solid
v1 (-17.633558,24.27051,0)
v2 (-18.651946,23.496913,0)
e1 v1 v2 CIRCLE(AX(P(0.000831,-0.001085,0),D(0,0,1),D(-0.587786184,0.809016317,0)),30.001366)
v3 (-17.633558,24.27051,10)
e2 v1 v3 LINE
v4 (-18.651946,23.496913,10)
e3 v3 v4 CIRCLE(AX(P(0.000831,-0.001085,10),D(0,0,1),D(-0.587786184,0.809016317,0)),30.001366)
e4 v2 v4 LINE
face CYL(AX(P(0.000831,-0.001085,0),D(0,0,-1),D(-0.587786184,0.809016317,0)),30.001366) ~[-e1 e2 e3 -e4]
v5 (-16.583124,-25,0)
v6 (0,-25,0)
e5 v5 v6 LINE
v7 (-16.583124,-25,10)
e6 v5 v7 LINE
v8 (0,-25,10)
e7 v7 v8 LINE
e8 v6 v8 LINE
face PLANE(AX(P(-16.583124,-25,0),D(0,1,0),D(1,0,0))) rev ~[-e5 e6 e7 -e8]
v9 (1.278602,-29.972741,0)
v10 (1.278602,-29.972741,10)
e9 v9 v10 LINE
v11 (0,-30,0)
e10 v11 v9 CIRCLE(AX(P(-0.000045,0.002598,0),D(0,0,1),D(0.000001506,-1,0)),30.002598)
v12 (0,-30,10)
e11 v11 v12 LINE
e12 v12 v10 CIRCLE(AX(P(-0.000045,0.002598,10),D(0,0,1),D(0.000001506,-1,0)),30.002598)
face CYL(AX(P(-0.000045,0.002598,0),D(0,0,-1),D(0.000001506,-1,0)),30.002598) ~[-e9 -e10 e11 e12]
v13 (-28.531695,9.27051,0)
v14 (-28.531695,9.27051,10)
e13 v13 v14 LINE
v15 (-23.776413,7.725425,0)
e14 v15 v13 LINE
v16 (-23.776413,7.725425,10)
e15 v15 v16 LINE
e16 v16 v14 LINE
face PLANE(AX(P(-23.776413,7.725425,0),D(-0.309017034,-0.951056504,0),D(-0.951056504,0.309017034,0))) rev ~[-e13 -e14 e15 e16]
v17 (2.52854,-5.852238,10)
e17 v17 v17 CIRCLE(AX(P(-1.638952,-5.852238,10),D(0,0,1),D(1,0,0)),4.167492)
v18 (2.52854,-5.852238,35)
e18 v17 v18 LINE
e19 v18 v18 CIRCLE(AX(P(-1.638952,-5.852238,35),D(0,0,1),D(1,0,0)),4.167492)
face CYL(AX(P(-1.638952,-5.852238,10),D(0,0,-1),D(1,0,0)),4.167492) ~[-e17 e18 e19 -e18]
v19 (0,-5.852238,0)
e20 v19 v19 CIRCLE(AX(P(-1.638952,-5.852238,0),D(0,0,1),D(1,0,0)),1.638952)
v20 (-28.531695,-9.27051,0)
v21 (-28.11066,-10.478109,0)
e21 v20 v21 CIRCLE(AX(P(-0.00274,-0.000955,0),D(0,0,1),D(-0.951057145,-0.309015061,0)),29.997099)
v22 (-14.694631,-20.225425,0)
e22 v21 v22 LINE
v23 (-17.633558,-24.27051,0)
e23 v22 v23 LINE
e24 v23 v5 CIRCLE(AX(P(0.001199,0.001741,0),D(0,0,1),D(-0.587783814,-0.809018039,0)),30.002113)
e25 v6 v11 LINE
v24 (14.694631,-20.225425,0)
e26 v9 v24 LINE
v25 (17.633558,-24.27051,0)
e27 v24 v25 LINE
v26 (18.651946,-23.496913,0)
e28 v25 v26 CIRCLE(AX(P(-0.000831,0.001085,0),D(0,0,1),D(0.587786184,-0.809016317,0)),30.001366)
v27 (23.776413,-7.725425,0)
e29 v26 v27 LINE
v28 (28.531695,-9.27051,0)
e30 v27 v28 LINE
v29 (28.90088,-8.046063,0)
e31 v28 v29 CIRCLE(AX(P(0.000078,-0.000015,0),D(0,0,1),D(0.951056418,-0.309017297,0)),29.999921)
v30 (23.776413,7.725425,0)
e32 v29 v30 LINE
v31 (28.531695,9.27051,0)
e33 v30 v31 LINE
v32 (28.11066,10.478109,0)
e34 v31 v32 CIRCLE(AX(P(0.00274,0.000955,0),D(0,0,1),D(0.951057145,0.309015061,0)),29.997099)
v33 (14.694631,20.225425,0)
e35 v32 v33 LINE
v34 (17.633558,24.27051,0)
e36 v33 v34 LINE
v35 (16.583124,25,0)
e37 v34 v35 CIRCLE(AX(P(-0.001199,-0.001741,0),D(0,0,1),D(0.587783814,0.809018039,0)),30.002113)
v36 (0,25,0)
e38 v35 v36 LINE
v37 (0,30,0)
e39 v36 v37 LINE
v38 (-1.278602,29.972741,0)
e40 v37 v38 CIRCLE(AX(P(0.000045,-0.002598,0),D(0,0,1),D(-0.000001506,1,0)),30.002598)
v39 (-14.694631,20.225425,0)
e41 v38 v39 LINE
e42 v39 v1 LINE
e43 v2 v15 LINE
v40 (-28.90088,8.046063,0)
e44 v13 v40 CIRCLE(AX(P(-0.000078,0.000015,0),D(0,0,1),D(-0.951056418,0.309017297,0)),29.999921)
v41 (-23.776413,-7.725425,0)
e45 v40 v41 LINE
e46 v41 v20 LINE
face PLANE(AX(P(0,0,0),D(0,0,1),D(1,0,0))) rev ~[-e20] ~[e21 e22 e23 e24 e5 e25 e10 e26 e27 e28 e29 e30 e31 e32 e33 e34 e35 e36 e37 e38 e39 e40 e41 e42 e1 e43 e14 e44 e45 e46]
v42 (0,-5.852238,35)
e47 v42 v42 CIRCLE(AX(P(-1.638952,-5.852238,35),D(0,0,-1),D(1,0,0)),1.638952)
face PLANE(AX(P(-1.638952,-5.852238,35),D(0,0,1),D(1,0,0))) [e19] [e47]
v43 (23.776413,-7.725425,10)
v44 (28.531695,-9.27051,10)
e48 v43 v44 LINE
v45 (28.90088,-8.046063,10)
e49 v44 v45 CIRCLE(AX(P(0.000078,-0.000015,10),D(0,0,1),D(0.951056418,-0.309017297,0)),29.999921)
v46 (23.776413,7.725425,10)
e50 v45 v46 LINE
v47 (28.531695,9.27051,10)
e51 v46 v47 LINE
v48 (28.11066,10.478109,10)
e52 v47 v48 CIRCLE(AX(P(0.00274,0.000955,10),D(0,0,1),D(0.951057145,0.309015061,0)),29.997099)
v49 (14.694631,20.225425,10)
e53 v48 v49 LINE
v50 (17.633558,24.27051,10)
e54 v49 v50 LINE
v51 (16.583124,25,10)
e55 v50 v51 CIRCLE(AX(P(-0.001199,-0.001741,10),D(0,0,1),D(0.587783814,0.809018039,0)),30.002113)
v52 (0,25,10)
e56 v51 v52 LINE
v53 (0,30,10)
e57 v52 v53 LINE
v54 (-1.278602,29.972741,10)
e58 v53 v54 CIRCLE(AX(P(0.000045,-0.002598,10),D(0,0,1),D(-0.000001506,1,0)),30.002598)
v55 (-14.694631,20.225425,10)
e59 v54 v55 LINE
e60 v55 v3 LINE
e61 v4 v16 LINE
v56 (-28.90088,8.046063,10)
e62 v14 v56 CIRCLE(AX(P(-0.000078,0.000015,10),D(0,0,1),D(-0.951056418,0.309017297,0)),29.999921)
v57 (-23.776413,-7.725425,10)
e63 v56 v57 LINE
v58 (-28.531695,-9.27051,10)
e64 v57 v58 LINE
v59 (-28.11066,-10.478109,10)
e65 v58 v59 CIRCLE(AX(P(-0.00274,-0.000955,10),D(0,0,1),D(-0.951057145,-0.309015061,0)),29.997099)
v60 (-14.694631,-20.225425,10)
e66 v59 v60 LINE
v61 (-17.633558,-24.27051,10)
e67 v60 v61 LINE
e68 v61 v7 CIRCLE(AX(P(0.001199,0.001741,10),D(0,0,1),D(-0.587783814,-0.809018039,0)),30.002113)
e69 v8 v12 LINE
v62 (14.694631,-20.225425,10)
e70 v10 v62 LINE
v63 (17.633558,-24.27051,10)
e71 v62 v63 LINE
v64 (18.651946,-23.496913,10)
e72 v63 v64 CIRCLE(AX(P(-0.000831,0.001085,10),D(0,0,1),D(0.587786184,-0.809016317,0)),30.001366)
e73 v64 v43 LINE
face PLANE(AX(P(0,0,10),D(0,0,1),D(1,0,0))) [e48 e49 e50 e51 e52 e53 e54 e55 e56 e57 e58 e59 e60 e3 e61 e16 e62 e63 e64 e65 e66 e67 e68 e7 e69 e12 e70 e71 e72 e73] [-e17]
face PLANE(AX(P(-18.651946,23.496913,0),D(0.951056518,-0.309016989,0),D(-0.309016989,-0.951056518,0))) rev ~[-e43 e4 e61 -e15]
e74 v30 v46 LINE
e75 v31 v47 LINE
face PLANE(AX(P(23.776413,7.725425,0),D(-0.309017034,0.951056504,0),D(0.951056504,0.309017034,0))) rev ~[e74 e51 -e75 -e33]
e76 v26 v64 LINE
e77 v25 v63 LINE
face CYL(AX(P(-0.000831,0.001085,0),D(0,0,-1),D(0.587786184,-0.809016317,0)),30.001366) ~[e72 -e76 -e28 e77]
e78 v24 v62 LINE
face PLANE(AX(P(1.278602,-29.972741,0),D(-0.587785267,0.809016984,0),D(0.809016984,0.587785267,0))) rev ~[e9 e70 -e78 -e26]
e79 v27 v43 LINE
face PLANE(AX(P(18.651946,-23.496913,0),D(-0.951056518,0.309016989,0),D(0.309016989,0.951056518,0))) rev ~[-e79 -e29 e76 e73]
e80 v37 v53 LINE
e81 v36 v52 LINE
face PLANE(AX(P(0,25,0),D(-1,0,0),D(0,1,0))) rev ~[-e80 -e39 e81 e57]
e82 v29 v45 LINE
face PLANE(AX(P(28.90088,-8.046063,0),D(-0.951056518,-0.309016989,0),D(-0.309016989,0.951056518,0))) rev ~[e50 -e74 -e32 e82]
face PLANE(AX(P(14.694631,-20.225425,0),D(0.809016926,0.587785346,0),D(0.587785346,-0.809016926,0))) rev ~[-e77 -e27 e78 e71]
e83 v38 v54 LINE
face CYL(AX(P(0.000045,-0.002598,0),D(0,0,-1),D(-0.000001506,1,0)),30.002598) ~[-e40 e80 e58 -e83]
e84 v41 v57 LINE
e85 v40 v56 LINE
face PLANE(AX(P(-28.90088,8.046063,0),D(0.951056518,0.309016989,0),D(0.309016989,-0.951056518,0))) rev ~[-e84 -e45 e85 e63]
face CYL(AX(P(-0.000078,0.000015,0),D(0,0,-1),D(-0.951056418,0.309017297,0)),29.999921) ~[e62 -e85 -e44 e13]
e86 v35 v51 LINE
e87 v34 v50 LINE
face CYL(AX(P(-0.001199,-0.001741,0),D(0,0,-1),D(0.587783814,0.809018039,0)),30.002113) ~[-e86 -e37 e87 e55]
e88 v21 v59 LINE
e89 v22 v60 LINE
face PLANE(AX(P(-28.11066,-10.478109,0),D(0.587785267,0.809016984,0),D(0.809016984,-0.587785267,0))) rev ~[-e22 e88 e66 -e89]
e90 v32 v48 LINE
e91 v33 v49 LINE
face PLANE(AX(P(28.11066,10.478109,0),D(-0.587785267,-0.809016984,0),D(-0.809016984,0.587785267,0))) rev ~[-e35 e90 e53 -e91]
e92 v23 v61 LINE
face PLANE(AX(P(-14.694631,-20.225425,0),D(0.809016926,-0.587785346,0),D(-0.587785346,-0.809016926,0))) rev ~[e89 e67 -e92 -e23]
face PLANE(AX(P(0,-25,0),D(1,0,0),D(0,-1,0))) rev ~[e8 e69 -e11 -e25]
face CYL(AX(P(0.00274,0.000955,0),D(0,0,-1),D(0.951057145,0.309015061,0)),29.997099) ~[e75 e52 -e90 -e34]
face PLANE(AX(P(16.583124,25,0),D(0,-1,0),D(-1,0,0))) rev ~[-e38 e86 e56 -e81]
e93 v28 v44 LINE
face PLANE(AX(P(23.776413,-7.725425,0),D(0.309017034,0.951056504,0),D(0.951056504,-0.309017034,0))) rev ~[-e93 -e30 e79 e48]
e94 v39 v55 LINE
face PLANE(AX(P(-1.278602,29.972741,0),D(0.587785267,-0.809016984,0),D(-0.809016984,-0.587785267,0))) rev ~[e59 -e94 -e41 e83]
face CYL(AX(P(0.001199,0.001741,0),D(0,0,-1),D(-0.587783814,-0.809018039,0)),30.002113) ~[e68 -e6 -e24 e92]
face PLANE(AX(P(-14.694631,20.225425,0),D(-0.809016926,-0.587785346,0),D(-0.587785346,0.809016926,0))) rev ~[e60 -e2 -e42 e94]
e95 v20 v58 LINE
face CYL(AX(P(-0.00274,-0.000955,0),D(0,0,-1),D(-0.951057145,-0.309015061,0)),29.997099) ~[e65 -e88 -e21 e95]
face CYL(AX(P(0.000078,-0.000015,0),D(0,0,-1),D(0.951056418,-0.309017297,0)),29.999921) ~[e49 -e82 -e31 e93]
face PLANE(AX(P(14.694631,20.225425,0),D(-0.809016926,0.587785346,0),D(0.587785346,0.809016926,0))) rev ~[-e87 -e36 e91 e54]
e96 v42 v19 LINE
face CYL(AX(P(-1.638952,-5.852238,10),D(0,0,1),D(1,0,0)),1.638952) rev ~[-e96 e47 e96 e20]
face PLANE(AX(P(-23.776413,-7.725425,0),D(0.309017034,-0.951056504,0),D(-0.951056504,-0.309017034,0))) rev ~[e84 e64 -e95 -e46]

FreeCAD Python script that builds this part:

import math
import FreeCAD as App
import Part
import Sketcher

V = App.Vector
Q = App.Units.Quantity

doc = App.newDocument("Part")
body = doc.addObject("PartDesign::Body", "Body")

# Sketch on XY plane
sketch1 = body.newObject("Sketcher::SketchObject", "Sketch")
sketch1.AttachmentSupport = (doc.getObject("XY_Plane"), [""])
sketch1.MapMode = "FlatFace"
sketch1.addGeometry([
    Part.LineSegment(V(0, 25, 0), V(0, 30, 0)),  # 0
    Part.ArcOfCircle(Part.Circle(V(0.000045, -0.002598, 0), V(0, 0, 1), 30.002598), math.radians(90.000086), math.radians(92.442565)),  # 1
    Part.LineSegment(V(-1.278602, 29.972741, 0), V(-14.694631, 20.225425, 0)),  # 2
    Part.LineSegment(V(-14.694631, 20.225425, 0), V(-17.633558, 24.27051, 0)),  # 3
    Part.ArcOfCircle(Part.Circle(V(0.000831, -0.001085, 0), V(0, 0, 1), 30.001366), math.radians(126.000066), math.radians(128.442645)),  # 4
    Part.LineSegment(V(-18.651946, 23.496913, 0), V(-23.776413, 7.725425, 0)),  # 5
    Part.LineSegment(V(-23.776413, 7.725425, 0), V(-28.531695, 9.27051, 0)),  # 6
    Part.ArcOfCircle(Part.Circle(V(-0.000078, 0.000015, 0), V(0, 0, 1), 29.999921), math.radians(161.999982), math.radians(164.442679)),  # 7
    Part.LineSegment(V(-28.90088, 8.046063, 0), V(-23.776413, -7.725425, 0)),  # 8
    Part.LineSegment(V(-23.776413, -7.725425, 0), V(-28.531695, -9.27051, 0)),  # 9
    Part.ArcOfCircle(Part.Circle(V(-0.00274, -0.000955, 0), V(0, 0, 1), 29.997099), math.radians(-162.000116), math.radians(-159.557191)),  # 10
    Part.LineSegment(V(-28.11066, -10.478109, 0), V(-14.694631, -20.225425, 0)),  # 11
    Part.LineSegment(V(-14.694631, -20.225425, 0), V(-17.633558, -24.27051, 0)),  # 12
    Part.ArcOfCircle(Part.Circle(V(0.001199, 0.001741, 0), V(0, 0, 1), 30.002113), math.radians(-125.999898), math.radians(-123.55738)),  # 13
    Part.LineSegment(V(-16.583124, -25, 0), V(0, -25, 0)),  # 14
    Part.LineSegment(V(0, -25, 0), V(0, -30, 0)),  # 15
    Part.ArcOfCircle(Part.Circle(V(-0.000045, 0.002598, 0), V(0, 0, 1), 30.002598), math.radians(-89.999914), math.radians(-87.557435)),  # 16
    Part.LineSegment(V(1.278602, -29.972741, 0), V(14.694631, -20.225425, 0)),  # 17
    Part.LineSegment(V(14.694631, -20.225425, 0), V(17.633558, -24.27051, 0)),  # 18
    Part.ArcOfCircle(Part.Circle(V(-0.000831, 0.001085, 0), V(0, 0, 1), 30.001366), math.radians(-53.999934), math.radians(-51.557355)),  # 19
    Part.LineSegment(V(18.651946, -23.496913, 0), V(23.776413, -7.725425, 0)),  # 20
    Part.LineSegment(V(23.776413, -7.725425, 0), V(28.531695, -9.27051, 0)),  # 21
    Part.ArcOfCircle(Part.Circle(V(0.000078, -0.000015, 0), V(0, 0, 1), 29.999921), math.radians(-18.000018), math.radians(-15.557321)),  # 22
    Part.LineSegment(V(28.90088, -8.046063, 0), V(23.776413, 7.725425, 0)),  # 23
    Part.LineSegment(V(23.776413, 7.725425, 0), V(28.531695, 9.27051, 0)),  # 24
    Part.ArcOfCircle(Part.Circle(V(0.00274, 0.000955, 0), V(0, 0, 1), 29.997099), math.radians(17.999884), math.radians(20.442809)),  # 25
    Part.LineSegment(V(28.11066, 10.478109, 0), V(14.694631, 20.225425, 0)),  # 26
    Part.LineSegment(V(14.694631, 20.225425, 0), V(17.633558, 24.27051, 0)),  # 27
    Part.ArcOfCircle(Part.Circle(V(-0.001199, -0.001741, 0), V(0, 0, 1), 30.002113), math.radians(54.000102), math.radians(56.44262)),  # 28
    Part.LineSegment(V(16.583124, 25, 0), V(0, 25, 0)),  # 29
], False)
sketch1.addConstraint([
    Sketcher.Constraint("Coincident", 0, 2, 1, 1),
    Sketcher.Constraint("Coincident", 1, 2, 2, 1),
    Sketcher.Constraint("Coincident", 2, 2, 3, 1),
    Sketcher.Constraint("Coincident", 3, 2, 4, 1),
    Sketcher.Constraint("Coincident", 4, 2, 5, 1),
    Sketcher.Constraint("Coincident", 5, 2, 6, 1),
    Sketcher.Constraint("Coincident", 6, 2, 7, 1),
    Sketcher.Constraint("Coincident", 7, 2, 8, 1),
    Sketcher.Constraint("Coincident", 8, 2, 9, 1),
    Sketcher.Constraint("Coincident", 9, 2, 10, 1),
    Sketcher.Constraint("Coincident", 10, 2, 11, 1),
    Sketcher.Constraint("Coincident", 11, 2, 12, 1),
    Sketcher.Constraint("Coincident", 12, 2, 13, 1),
    Sketcher.Constraint("Coincident", 13, 2, 14, 1),
    Sketcher.Constraint("Coincident", 14, 2, 15, 1),
    Sketcher.Constraint("Coincident", 15, 2, 16, 1),
    Sketcher.Constraint("Coincident", 16, 2, 17, 1),
    Sketcher.Constraint("Coincident", 17, 2, 18, 1),
    Sketcher.Constraint("Coincident", 18, 2, 19, 1),
    Sketcher.Constraint("Coincident", 19, 2, 20, 1),
    Sketcher.Constraint("Coincident", 20, 2, 21, 1),
    Sketcher.Constraint("Coincident", 21, 2, 22, 1),
    Sketcher.Constraint("Coincident", 22, 2, 23, 1),
    Sketcher.Constraint("Coincident", 23, 2, 24, 1),
    Sketcher.Constraint("Coincident", 24, 2, 25, 1),
    Sketcher.Constraint("Coincident", 25, 2, 26, 1),
    Sketcher.Constraint("Coincident", 26, 2, 27, 1),
    Sketcher.Constraint("Coincident", 27, 2, 28, 1),
    Sketcher.Constraint("Coincident", 28, 2, 29, 1),
    Sketcher.Constraint("Coincident", 29, 2, 0, 1),
    Sketcher.Constraint("Vertical", 0),
    Sketcher.Constraint("Horizontal", 14),
    Sketcher.Constraint("Vertical", 15),
    Sketcher.Constraint("Horizontal", 29),
    Sketcher.Constraint("Equal", 1, 16),
    Sketcher.Constraint("Equal", 4, 19),
    Sketcher.Constraint("Equal", 7, 22),
    Sketcher.Constraint("Equal", 10, 25),
    Sketcher.Constraint("Equal", 13, 28),
    Sketcher.Constraint("Symmetric", 1, 3, 16, 3, -1, 1),
    Sketcher.Constraint("Symmetric", 4, 3, 19, 3, -1, 1),
    Sketcher.Constraint("Symmetric", 7, 3, 22, 3, -1, 1),
    Sketcher.Constraint("Symmetric", 10, 3, 25, 3, -1, 1),
    Sketcher.Constraint("Symmetric", 13, 3, 28, 3, -1, 1),
    Sketcher.Constraint("Symmetric", 2, 2, 17, 2, -1, 1),
    Sketcher.Constraint("Symmetric", 5, 2, 20, 2, -1, 1),
    Sketcher.Constraint("Symmetric", 8, 2, 23, 2, -1, 1),
    Sketcher.Constraint("Symmetric", 11, 2, 26, 2, -1, 1),
    Sketcher.Constraint("Symmetric", 14, 2, 29, 2, -1, 1),
    Sketcher.Constraint("Symmetric", 11, 2, 17, 2, -2),
    Sketcher.Constraint("Symmetric", 12, 2, 18, 2, -2),
    Sketcher.Constraint("Symmetric", 8, 2, 20, 2, -2),
    Sketcher.Constraint("Symmetric", 9, 2, 21, 2, -2),
    Sketcher.Constraint("PointOnObject", 0, 2, -2),
    Sketcher.Constraint("Perpendicular", 2, 3),
    Sketcher.Constraint("Perpendicular", 5, 6),
    Sketcher.Constraint("Perpendicular", 8, 9),
    Sketcher.Constraint("Perpendicular", 11, 12),
    Sketcher.Constraint("Perpendicular", 3, 17),
    Sketcher.Constraint("Perpendicular", 17, 18),
    Sketcher.Constraint("Perpendicular", 6, 20),
    Sketcher.Constraint("Perpendicular", 20, 21),
    Sketcher.Constraint("Perpendicular", 9, 23),
    Sketcher.Constraint("Perpendicular", 23, 24),
    Sketcher.Constraint("Perpendicular", 12, 26),
    Sketcher.Constraint("Perpendicular", 26, 27),
    Sketcher.Constraint("Equal", 2, 5),
    Sketcher.Constraint("Equal", 3, 6),
    Sketcher.Constraint("Equal", 5, 8),
    Sketcher.Constraint("Equal", 8, 11),
    Sketcher.Constraint("DistanceY", 0, 1, 0, 2, 5.0),
    Sketcher.Constraint("Angle", 2, Q("-143.999999 deg")),
    Sketcher.Constraint("Angle", 5, Q("-108 deg")),
    Sketcher.Constraint("Distance", 3, 5.0),
    Sketcher.Constraint("DistanceY", -1, 1, 0, 2, 30.0),
    Sketcher.Constraint("DistanceY", 6, 2, 3, 2, 15.0),
    Sketcher.Constraint("Radius", 1, 30.002598),
    Sketcher.Constraint("Radius", 10, 29.997099),
    Sketcher.Constraint("Radius", 7, 29.999921),
    Sketcher.Constraint("Radius", 4, 30.001366),
    Sketcher.Constraint("Radius", 13, 30.002113),
    Sketcher.Constraint("DistanceY", 13, 3, 1, 2, 29.971),
    Sketcher.Constraint("DistanceX", -1, 1, 13, 3, 0.001199),
    Sketcher.Constraint("DistanceX", 1, 2, -1, 1, 1.278602),
    Sketcher.Constraint("DistanceY", 4, 3, 7, 3, 0.0011),
    Sketcher.Constraint("DistanceX", 2, 2, 19, 3, 14.6938),
])
pad1 = body.newObject("PartDesign::Pad", "Pad")
pad1.Profile = sketch1
pad1.Length = 10

# Sketch on XY plane
sketch2 = body.newObject("Sketcher::SketchObject", "Sketch001")
sketch2.AttachmentSupport = (doc.getObject("XY_Plane"), [""])
sketch2.MapMode = "FlatFace"
sketch2.AttachmentOffset = App.Placement(V(0, 0, 10), App.Rotation())
sketch2.addGeometry(Part.Circle(V(-1.6, -5.9, 0), V(0, 0, 1), 4.2), False)
sketch2.addConstraint([
    Sketcher.Constraint("Diameter", 0, 8.334984),
    Sketcher.Constraint("DistanceX", 0, 3, -1, 1, 1.638952),
    Sketcher.Constraint("DistanceY", 0, 3, -1, 1, 5.852238),
])
pad2 = body.newObject("PartDesign::Pad", "Pad001")
pad2.Profile = sketch2
pad2.Length = 25

# Sketch on XY plane
sketch3 = body.newObject("Sketcher::SketchObject", "Sketch002")
sketch3.AttachmentSupport = (doc.getObject("XY_Plane"), [""])
sketch3.MapMode = "FlatFace"
sketch3.AttachmentOffset = App.Placement(V(0, 0, 10), App.Rotation())
sketch3.addGeometry(Part.Circle(V(-1.6, -5.9, 0), V(0, 0, 1), 1.6), False)
sketch3.addConstraint([
    Sketcher.Constraint("Diameter", 0, 3.277904),
    Sketcher.Constraint("DistanceX", 0, 3, -1, 1, 1.638952),
    Sketcher.Constraint("DistanceY", 0, 3, -1, 1, 5.852238),
])
pocket1 = body.newObject("PartDesign::Pocket", "Pocket")
pocket1.Profile = sketch3
pocket1.Length = 25

# Sketch on XY plane
sketch4 = body.newObject("Sketcher::SketchObject", "Sketch003")
sketch4.AttachmentSupport = (doc.getObject("XY_Plane"), [""])
sketch4.MapMode = "FlatFace"
sketch4.AttachmentOffset = App.Placement(V(0, 0, 10), App.Rotation())
sketch4.addGeometry(Part.Circle(V(-1.6, -5.9, 0), V(0, 0, 1), 1.6), False)
sketch4.addConstraint([
    Sketcher.Constraint("Diameter", 0, 3.277904),
    Sketcher.Constraint("DistanceX", 0, 3, -1, 1, 1.638952),
    Sketcher.Constraint("DistanceY", 0, 3, -1, 1, 5.852238),
])
pocket2 = body.newObject("PartDesign::Pocket", "Pocket001")
pocket2.Profile = sketch4
pocket2.Length = 47.6
pocket2.Reversed = True

doc.recompute()
